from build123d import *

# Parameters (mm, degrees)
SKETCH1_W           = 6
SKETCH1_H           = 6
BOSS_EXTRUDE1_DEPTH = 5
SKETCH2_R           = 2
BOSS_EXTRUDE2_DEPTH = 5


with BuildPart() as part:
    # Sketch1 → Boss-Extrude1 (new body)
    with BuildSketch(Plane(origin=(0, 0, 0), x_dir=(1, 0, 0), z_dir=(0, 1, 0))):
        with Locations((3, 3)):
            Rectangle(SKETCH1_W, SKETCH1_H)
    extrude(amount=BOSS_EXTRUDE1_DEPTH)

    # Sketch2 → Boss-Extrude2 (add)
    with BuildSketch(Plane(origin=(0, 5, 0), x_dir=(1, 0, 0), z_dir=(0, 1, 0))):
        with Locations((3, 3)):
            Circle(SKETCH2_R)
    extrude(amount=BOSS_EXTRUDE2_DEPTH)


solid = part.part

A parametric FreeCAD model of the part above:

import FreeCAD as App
import Part
import Sketcher

V = App.Vector

doc = App.newDocument("Part")
body = doc.addObject("PartDesign::Body", "Body")

sketch1 = doc.addObject("Sketcher::SketchObject", "Sketch")
body.addObject(sketch1)
sketch1.AttachmentSupport = (doc.XZ_Plane, [""])
sketch1.MapMode = "FlatFace"
sketch1.addGeometry([
    Part.LineSegment(V(0, -6, 0), V(0, 0, 0)),
    Part.LineSegment(V(0, 0, 0), V(6, 0, 0)),
    Part.LineSegment(V(6, 0, 0), V(6, -6, 0)),
    Part.LineSegment(V(6, -6, 0), V(0, -6, 0)),
], False)
sketch1.addConstraint([
    Sketcher.Constraint("Coincident", 0, 2, 1, 1),
    Sketcher.Constraint("Coincident", 1, 2, 2, 1),
    Sketcher.Constraint("Coincident", 2, 2, 3, 1),
    Sketcher.Constraint("Coincident", 3, 2, 0, 1),
    Sketcher.Constraint("Vertical", 0),
    Sketcher.Constraint("Horizontal", 1),
    Sketcher.Constraint("Vertical", 2),
    Sketcher.Constraint("Horizontal", 3),
    Sketcher.Constraint("Coincident", 0, 2, -1, 1),
    Sketcher.Constraint("Equal", 3, 0),
    Sketcher.Constraint("DistanceX", 1, 1, 1, 2, 6.0),
])
pad1 = doc.addObject("PartDesign::Pad", "Pad")
body.addObject(pad1)
pad1.Profile = sketch1
pad1.Length = 5
pad1.Reversed = True

sketch2 = doc.addObject("Sketcher::SketchObject", "Sketch001")
body.addObject(sketch2)
sketch2.AttachmentSupport = (doc.XZ_Plane, [""])
sketch2.MapMode = "FlatFace"
sketch2.AttachmentOffset = App.Placement(V(0, 0, -5), App.Rotation())
sketch2.addGeometry(Part.Circle(V(3, -3, 0), V(0, 0, 1), 2), False)
sketch2.addConstraint([
    Sketcher.Constraint("Diameter", 0, 4.0),
    Sketcher.Constraint("DistanceX", -1, 1, 0, 3, 3.0),
    Sketcher.Constraint("DistanceY", 0, 3, -1, 1, 3.0),
])
pad2 = doc.addObject("PartDesign::Pad", "Pad001")
body.addObject(pad2)
pad2.Profile = sketch2
pad2.Length = 5
pad2.Reversed = True

doc.recompute()
